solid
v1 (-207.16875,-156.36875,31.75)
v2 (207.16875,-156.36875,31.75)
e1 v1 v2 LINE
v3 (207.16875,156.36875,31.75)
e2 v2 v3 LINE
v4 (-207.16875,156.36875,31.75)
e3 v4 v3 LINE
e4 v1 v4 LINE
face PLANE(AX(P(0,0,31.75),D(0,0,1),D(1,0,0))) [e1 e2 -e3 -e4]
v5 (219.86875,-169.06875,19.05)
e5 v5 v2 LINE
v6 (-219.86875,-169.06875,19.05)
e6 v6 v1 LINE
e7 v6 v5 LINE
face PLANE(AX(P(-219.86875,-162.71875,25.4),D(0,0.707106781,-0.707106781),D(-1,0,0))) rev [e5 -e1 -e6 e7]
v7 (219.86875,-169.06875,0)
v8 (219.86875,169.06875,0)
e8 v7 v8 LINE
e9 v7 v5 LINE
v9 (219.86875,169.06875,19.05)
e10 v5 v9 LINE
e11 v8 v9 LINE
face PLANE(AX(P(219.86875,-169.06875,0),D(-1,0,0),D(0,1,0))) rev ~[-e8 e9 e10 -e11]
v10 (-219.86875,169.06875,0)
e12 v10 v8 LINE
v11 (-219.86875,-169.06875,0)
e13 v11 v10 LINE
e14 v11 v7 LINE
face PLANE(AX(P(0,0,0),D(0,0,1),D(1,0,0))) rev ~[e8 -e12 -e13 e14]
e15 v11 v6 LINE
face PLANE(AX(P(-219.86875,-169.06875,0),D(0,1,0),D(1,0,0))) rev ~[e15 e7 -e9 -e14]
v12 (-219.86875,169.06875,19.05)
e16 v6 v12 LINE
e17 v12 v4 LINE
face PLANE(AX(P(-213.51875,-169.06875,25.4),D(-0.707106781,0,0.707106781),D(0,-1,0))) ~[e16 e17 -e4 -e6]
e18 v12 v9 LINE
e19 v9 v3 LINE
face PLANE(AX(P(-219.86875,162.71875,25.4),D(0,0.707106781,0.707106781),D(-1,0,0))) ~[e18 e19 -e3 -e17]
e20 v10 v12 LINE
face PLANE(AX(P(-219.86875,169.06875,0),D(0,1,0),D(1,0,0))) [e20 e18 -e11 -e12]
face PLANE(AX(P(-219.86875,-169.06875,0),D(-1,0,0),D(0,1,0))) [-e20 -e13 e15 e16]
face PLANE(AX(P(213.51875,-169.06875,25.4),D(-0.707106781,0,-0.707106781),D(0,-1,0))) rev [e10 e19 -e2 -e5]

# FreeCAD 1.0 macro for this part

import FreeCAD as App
import Part
import Sketcher

V = App.Vector
Q = App.Units.Quantity


def edges_at(feature, points):
    """Names of the edges that pass closest to the given points."""
    edges = feature.Shape.Edges
    near = lambda p: min(range(len(edges)), key=lambda i: edges[i].distToShape(Part.Vertex(*p))[0])
    return sorted({f"Edge{near(p) + 1}" for p in points})


def add_polygon(sketch, points):
    """Adds a closed chain of lines whose ends are joined by coincident constraints."""
    first, n = sketch.GeometryCount, len(points)
    for a, b in zip(points, points[1:] + points[:1]):
        sketch.addGeometry(Part.LineSegment(App.Vector(*a, 0), App.Vector(*b, 0)), False)
    for i in range(n):
        sketch.addConstraint(Sketcher.Constraint("Coincident", first + i, 2, first + (i + 1) % n, 1))

doc = App.newDocument("Part")
body = doc.addObject("PartDesign::Body", "Body")

# Sketch on XY plane
sketch1 = body.newObject("Sketcher::SketchObject", "Sketch")
sketch1.AttachmentSupport = (doc.getObject("XY_Plane"), [""])
sketch1.MapMode = "FlatFace"
add_polygon(sketch1, [(-219.86875, 169.06875), (-219.86875, -169.06875), (219.86875, -169.06875), (219.86875, 169.06875)])  # lines 0-3
sketch1.addConstraint([
    Sketcher.Constraint("Vertical", 0),
    Sketcher.Constraint("Horizontal", 1),
    Sketcher.Constraint("Vertical", 2),
    Sketcher.Constraint("Horizontal", 3),
    Sketcher.Constraint("Symmetric", 0, 2, 2, 2, -1, 1),
    Sketcher.Constraint("DistanceX", 1, 1, 1, 2, Q("17.3125 in")),
    Sketcher.Constraint("DistanceY", 0, 2, 0, 1, Q("13.3125 in")),
])
pad1 = body.newObject("PartDesign::Pad", "Pad")
pad1.Profile = sketch1
pad1.Length = Q("1.25 in")
doc.recompute()

chamfer = body.newObject("PartDesign::Chamfer", "Chamfer")
chamfer.Base = (pad1, edges_at(pad1, [
    (-219.869, 0, 31.75),
    (0, -169.069, 31.75),
    (219.869, 0, 31.75),
    (0, 169.069, 31.75),
]))
chamfer.Size = Q("0.5 in")

doc.recompute()
